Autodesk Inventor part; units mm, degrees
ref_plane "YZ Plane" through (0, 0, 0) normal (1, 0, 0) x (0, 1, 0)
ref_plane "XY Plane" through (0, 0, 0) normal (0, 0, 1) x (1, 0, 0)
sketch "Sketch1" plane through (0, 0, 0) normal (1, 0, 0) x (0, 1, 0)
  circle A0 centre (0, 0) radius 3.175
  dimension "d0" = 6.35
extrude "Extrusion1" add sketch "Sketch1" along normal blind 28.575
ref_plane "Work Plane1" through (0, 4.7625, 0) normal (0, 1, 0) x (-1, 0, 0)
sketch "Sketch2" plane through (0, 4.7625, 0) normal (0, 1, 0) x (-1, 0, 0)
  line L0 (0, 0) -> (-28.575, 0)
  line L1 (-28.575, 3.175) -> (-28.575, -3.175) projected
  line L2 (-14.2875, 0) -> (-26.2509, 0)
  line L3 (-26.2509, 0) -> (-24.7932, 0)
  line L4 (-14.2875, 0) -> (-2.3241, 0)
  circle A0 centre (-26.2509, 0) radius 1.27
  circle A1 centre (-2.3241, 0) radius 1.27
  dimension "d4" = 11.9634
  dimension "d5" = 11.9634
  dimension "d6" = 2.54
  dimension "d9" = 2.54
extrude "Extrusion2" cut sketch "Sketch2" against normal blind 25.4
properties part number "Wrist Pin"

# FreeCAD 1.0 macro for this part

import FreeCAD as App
import Part
import Sketcher
from FreeCAD import Vector
Q = App.Units.Quantity

doc = App.newDocument("Part")
params = doc.addObject("Spreadsheet::Sheet", "Params")
for row, (alias, value) in enumerate([
    ("sketch1_diameter", "0.25 in"),
    ("pad1_length", "1.125 in"),
    ("sketch2_diameter", "0.1 in"),
    ("pocket1_length", "1 in"),
], start=1):
    params.set(f"A{row}", alias)
    params.set(f"B{row}", "=" + value)
    params.setAlias(f"B{row}", alias)

body = doc.addObject("PartDesign::Body", "Body")

sketch1 = body.newObject("Sketcher::SketchObject", "Sketch")
sketch1.AttachmentSupport = (doc.getObject("YZ_Plane"), [""])
sketch1.MapMode = "FlatFace"
sketch1.addGeometry(Part.Circle(Vector(0, 0, 0), Vector(0, 0, 1), 3.175), False)
sketch1.addConstraint([
    Sketcher.Constraint("Coincident", 0, 3, -1, 1),
    Sketcher.Constraint("Diameter", 0, Q("0.25 in")),
])
sketch1.setExpression("Constraints[1]", "Params.sketch1_diameter")
pad1 = body.newObject("PartDesign::Pad", "Pad")
pad1.Profile = sketch1
pad1.setExpression("Length", "Params.pad1_length")

sketch2 = body.newObject("Sketcher::SketchObject", "Sketch001")
sketch2.AttachmentSupport = (doc.getObject("XZ_Plane"), [""])
sketch2.MapMode = "FlatFace"
sketch2.AttachmentOffset = App.Placement(Vector(0, 0, -0.1875 * 25.4), App.Rotation())
sketch2.addGeometry([
    Part.Circle(Vector(2.3241, 0, 0), Vector(0, 0, 1), 1.27),
    Part.Circle(Vector(26.2509, 0, 0), Vector(0, 0, 1), 1.27),
], False)
sketch2.addConstraint([
    Sketcher.Constraint("Equal", 0, 1),
    Sketcher.Constraint("PointOnObject", 0, 3, -1),
    Sketcher.Constraint("PointOnObject", 1, 3, -1),
    Sketcher.Constraint("Diameter", 0, Q("0.1 in")),
    Sketcher.Constraint("DistanceX", 0, 3, 1, 3, Q("0.942 in")),
    Sketcher.Constraint("DistanceX", -1, 1, 0, 3, Q("0.0915 in")),
])
sketch2.setExpression("Constraints[3]", "Params.sketch2_diameter")
pocket1 = body.newObject("PartDesign::Pocket", "Pocket")
pocket1.Profile = sketch2
pocket1.setExpression("Length", "Params.pocket1_length")
pocket1.Reversed = True

doc.recompute()
